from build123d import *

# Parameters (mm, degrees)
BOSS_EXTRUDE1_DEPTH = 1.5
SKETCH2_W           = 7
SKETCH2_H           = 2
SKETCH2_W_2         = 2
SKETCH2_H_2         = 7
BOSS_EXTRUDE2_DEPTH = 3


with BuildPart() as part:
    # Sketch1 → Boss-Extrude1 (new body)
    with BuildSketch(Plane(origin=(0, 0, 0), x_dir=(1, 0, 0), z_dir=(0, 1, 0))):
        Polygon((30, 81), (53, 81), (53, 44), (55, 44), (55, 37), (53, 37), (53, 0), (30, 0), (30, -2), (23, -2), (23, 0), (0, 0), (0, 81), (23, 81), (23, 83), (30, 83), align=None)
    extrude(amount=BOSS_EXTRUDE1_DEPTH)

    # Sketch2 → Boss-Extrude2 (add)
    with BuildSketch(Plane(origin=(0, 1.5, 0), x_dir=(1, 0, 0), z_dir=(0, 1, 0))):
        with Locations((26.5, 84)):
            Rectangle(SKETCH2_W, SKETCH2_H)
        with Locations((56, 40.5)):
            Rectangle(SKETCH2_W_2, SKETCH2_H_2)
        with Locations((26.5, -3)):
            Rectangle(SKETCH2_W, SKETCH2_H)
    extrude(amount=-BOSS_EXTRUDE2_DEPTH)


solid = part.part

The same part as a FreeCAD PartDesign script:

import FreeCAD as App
import Part
import Sketcher

V = App.Vector
Q = App.Units.Quantity


def add_polygon(sketch, points):
    """Adds a closed chain of lines whose ends are joined by coincident constraints."""
    first, n = sketch.GeometryCount, len(points)
    for a, b in zip(points, points[1:] + points[:1]):
        sketch.addGeometry(Part.LineSegment(App.Vector(*a, 0), App.Vector(*b, 0)), False)
    for i in range(n):
        sketch.addConstraint(Sketcher.Constraint("Coincident", first + i, 2, first + (i + 1) % n, 1))

doc = App.newDocument("Part")
body = doc.addObject("PartDesign::Body", "Body")

sketch1 = body.newObject("Sketcher::SketchObject", "Sketch")
sketch1.AttachmentSupport = (doc.getObject("XZ_Plane"), [""])
sketch1.MapMode = "FlatFace"
add_polygon(sketch1, [(53, -81), (30, -81), (30, -83), (23, -83), (23, -81), (0, -81), (0, 0), (23, 0), (23, 2), (30, 2), (30, 0), (53, 0), (53, -37), (55, -37), (55, -44), (53, -44)])
sketch1.addConstraint(Sketcher.Constraint("Horizontal", 0))
sketch1.addConstraint(Sketcher.Constraint("Vertical", 1))
sketch1.addConstraint(Sketcher.Constraint("Horizontal", 2))
sketch1.addConstraint(Sketcher.Constraint("Vertical", 3))
sketch1.addConstraint(Sketcher.Constraint("Horizontal", 4))
sketch1.addConstraint(Sketcher.Constraint("Vertical", 5))
sketch1.addConstraint(Sketcher.Constraint("Horizontal", 6))
sketch1.addConstraint(Sketcher.Constraint("Vertical", 7))
sketch1.addConstraint(Sketcher.Constraint("Horizontal", 8))
sketch1.addConstraint(Sketcher.Constraint("Vertical", 9))
sketch1.addConstraint(Sketcher.Constraint("Horizontal", 10))
sketch1.addConstraint(Sketcher.Constraint("Vertical", 11))
sketch1.addConstraint(Sketcher.Constraint("Horizontal", 12))
sketch1.addConstraint(Sketcher.Constraint("Vertical", 13))
sketch1.addConstraint(Sketcher.Constraint("Horizontal", 14))
sketch1.addConstraint(Sketcher.Constraint("Vertical", 15))
sketch1.addConstraint(Sketcher.Constraint("Coincident", 5, 2, -1, 1))
sketch1.addConstraint(Sketcher.Constraint("PointOnObject", 9, 2, -1))
sketch1.addConstraint(Sketcher.Constraint("Horizontal", 0, 2, 3, 2))
sketch1.addConstraint(Sketcher.Constraint("Vertical", 3, 2, 6, 2))
sketch1.addConstraint(Sketcher.Constraint("Vertical", 1, 2, 8, 2))
sketch1.addConstraint(Sketcher.Constraint("Vertical", 11, 2, 14, 2))
sketch1.addConstraint(Sketcher.Constraint("Equal", 0, 4))
sketch1.addConstraint(Sketcher.Constraint("Equal", 14, 1))
sketch1.addConstraint(Sketcher.Constraint("Equal", 3, 7))
sketch1.addConstraint(Sketcher.Constraint("Equal", 8, 13))
sketch1.addConstraint(Sketcher.Constraint("Equal", 11, 15))
sketch1.addConstraint(Sketcher.Constraint("DistanceX", 0, 2, 0, 1, Q("23 mm")))
sketch1.addConstraint(Sketcher.Constraint("DistanceX", 2, 2, 2, 1, Q("7 mm")))
sketch1.addConstraint(Sketcher.Constraint("DistanceX", 12, 1, 12, 2, Q("2 mm")))
sketch1.addConstraint(Sketcher.Constraint("DistanceY", 5, 1, 5, 2, Q("81 mm")))
pad1 = body.newObject("PartDesign::Pad", "Pad")
pad1.Profile = sketch1
pad1.Length = 1.5
pad1.Reversed = True

sketch2 = body.newObject("Sketcher::SketchObject", "Sketch001")
sketch2.AttachmentSupport = (doc.getObject("XZ_Plane"), [""])
sketch2.MapMode = "FlatFace"
sketch2.AttachmentOffset = App.Placement(V(0, 0, -1.5), App.Rotation())
add_polygon(sketch2, [(23, -85), (23, -83), (30, -83), (30, -85)])
add_polygon(sketch2, [(55, -44), (55, -37), (57, -37), (57, -44)])
add_polygon(sketch2, [(23, 2), (23, 4), (30, 4), (30, 2)])
sketch2.addConstraint(Sketcher.Constraint("Vertical", 0))
sketch2.addConstraint(Sketcher.Constraint("Horizontal", 1))
sketch2.addConstraint(Sketcher.Constraint("Vertical", 2))
sketch2.addConstraint(Sketcher.Constraint("Horizontal", 3))
sketch2.addConstraint(Sketcher.Constraint("Vertical", 4))
sketch2.addConstraint(Sketcher.Constraint("Horizontal", 5))
sketch2.addConstraint(Sketcher.Constraint("Vertical", 6))
sketch2.addConstraint(Sketcher.Constraint("Horizontal", 7))
sketch2.addConstraint(Sketcher.Constraint("Vertical", 8))
sketch2.addConstraint(Sketcher.Constraint("Horizontal", 9))
sketch2.addConstraint(Sketcher.Constraint("Vertical", 10))
sketch2.addConstraint(Sketcher.Constraint("Horizontal", 11))
sketch2.addConstraint(Sketcher.Constraint("Vertical", 3, 2, 8, 2))
sketch2.addConstraint(Sketcher.Constraint("Vertical", 2, 2, 9, 2))
sketch2.addConstraint(Sketcher.Constraint("Equal", 7, 0))
sketch2.addConstraint(Sketcher.Constraint("Equal", 11, 4))
sketch2.addConstraint(Sketcher.Constraint("Equal", 2, 8))
sketch2.addConstraint(Sketcher.Constraint("DistanceX", 1, 1, 1, 2, Q("7 mm")))
sketch2.addConstraint(Sketcher.Constraint("DistanceX", 5, 1, 5, 2, Q("2 mm")))
sketch2.addConstraint(Sketcher.Constraint("DistanceX", -1, 1, 0, 2, Q("23 mm")))
sketch2.addConstraint(Sketcher.Constraint("DistanceY", 0, 2, -1, 1, Q("83 mm")))
sketch2.addConstraint(Sketcher.Constraint("DistanceX", -1, 1, 4, 2, Q("55 mm")))
sketch2.addConstraint(Sketcher.Constraint("DistanceY", 4, 2, -1, 1, Q("37 mm")))
sketch2.addConstraint(Sketcher.Constraint("DistanceY", -1, 1, 8, 2, Q("4 mm")))
pad2 = body.newObject("PartDesign::Pad", "Pad001")
pad2.Profile = sketch2
pad2.Length = 3

doc.recompute()
